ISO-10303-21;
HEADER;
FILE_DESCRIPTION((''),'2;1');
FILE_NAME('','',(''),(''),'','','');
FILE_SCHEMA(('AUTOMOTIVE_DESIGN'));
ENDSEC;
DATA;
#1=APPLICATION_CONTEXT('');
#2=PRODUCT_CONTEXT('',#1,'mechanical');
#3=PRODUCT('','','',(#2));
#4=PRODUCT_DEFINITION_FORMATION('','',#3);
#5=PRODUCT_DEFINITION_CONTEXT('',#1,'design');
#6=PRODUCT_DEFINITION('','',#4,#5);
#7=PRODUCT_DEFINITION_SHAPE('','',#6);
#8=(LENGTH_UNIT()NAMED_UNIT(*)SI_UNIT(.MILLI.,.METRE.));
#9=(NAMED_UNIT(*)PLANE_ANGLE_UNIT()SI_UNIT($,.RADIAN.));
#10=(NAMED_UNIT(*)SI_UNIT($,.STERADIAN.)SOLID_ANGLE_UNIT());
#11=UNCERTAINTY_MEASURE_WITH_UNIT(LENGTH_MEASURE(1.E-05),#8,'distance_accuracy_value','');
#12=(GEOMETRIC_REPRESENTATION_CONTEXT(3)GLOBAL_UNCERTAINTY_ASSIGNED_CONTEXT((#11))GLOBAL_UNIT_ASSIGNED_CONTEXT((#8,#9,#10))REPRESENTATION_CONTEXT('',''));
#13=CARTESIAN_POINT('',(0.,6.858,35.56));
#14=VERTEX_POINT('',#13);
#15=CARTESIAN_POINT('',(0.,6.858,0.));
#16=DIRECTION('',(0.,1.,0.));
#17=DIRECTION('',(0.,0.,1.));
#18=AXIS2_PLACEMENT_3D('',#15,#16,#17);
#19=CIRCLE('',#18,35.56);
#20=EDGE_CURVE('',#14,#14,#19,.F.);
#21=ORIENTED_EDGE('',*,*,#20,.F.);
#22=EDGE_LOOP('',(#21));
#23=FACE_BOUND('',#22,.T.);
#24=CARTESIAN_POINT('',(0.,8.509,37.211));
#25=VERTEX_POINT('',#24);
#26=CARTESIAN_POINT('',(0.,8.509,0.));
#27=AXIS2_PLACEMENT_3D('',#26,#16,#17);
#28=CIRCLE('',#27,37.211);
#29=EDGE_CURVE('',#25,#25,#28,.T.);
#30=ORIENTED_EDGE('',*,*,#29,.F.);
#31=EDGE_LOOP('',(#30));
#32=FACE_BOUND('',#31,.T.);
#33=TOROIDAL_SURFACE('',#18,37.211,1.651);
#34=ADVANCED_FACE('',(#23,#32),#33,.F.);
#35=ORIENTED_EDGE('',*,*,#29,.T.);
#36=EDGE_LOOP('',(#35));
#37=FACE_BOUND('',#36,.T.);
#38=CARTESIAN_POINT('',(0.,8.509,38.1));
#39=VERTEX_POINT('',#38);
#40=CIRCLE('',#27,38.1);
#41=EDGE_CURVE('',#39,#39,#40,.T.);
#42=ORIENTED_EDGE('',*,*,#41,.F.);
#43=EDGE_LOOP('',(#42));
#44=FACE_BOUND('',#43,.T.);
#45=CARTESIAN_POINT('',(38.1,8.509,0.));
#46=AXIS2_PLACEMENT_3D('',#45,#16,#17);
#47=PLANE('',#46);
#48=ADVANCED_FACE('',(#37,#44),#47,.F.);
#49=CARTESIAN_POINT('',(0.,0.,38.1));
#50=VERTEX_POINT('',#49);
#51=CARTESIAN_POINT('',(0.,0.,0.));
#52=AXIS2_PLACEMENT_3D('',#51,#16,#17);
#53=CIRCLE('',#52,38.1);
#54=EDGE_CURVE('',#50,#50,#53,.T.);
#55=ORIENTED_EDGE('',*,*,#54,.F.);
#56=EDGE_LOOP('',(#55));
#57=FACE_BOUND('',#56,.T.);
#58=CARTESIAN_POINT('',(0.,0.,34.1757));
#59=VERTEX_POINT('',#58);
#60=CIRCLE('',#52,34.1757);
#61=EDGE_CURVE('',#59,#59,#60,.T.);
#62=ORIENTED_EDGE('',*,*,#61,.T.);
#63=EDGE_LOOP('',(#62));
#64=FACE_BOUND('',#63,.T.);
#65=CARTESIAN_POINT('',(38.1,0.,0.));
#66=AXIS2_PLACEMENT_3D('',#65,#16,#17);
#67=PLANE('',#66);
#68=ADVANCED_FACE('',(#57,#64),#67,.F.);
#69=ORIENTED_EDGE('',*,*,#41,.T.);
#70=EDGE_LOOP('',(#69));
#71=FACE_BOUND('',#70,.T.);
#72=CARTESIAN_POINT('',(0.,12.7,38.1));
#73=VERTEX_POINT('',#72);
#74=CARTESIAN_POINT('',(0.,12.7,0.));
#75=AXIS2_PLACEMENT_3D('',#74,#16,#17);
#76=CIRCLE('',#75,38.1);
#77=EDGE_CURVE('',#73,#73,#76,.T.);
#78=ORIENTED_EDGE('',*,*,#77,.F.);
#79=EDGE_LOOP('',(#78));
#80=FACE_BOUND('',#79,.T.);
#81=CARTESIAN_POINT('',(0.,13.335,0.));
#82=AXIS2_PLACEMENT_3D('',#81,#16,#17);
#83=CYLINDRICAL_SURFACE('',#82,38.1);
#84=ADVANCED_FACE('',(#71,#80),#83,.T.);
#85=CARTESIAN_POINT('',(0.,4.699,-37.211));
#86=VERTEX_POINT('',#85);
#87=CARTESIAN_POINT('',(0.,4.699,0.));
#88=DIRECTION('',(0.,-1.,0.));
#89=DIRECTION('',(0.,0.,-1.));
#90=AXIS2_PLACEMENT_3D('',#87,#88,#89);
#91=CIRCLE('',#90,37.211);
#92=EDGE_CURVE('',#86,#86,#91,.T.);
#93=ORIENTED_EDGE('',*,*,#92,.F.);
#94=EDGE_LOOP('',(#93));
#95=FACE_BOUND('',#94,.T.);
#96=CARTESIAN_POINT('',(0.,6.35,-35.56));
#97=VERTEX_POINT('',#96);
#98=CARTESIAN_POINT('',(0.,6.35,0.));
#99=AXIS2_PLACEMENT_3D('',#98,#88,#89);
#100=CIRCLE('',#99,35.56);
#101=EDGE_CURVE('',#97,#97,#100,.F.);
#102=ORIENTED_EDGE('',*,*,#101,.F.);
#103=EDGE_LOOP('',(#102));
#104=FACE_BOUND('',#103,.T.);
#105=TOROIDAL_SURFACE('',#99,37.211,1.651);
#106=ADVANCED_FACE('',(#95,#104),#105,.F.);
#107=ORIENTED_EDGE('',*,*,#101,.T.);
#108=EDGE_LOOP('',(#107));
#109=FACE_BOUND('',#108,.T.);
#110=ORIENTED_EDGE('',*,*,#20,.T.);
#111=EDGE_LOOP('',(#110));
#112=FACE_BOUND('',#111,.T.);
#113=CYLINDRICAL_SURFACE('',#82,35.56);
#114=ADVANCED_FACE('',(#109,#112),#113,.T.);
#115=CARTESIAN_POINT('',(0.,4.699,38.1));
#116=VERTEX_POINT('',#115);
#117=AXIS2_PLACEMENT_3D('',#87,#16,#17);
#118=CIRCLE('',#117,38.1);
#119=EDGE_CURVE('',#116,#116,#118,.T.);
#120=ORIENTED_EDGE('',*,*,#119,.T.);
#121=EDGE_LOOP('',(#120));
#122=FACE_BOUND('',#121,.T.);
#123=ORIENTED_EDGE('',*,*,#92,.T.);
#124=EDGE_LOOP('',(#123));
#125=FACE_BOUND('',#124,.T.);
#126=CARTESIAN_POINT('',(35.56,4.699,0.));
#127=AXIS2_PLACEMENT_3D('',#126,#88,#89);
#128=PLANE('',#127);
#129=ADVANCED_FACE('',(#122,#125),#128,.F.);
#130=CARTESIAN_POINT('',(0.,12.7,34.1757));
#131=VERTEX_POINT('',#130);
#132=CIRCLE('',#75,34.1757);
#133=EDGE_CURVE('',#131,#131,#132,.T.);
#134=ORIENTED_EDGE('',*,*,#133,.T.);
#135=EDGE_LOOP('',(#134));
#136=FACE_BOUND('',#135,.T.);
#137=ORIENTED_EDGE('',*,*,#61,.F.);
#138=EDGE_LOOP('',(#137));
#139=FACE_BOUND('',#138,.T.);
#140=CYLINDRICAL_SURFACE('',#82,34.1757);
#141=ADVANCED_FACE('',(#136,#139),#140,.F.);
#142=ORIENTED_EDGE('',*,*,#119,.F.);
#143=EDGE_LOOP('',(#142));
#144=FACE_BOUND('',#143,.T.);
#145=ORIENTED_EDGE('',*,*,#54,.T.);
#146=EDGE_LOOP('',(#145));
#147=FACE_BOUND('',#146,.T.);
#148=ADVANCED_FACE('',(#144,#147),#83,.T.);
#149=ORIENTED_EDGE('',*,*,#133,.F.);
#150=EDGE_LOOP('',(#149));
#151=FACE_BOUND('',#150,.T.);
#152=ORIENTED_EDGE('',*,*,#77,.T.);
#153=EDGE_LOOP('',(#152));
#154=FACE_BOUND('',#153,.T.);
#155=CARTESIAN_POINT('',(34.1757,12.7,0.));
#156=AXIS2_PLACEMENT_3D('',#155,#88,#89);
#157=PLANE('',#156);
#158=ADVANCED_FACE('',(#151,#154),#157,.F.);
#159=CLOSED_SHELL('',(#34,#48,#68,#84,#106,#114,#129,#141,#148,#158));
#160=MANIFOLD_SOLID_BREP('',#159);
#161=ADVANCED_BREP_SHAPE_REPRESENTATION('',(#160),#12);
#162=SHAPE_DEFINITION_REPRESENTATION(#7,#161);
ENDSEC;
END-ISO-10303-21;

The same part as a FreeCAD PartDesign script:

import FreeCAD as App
import Part
import Sketcher

V = App.Vector
Q = App.Units.Quantity


def edges_at(feature, points):
    """Names of the edges that pass closest to the given points."""
    edges = feature.Shape.Edges
    near = lambda p: min(range(len(edges)), key=lambda i: edges[i].distToShape(Part.Vertex(*p))[0])
    return sorted({f"Edge{near(p) + 1}" for p in points})

doc = App.newDocument("Part")
params = doc.addObject("Spreadsheet::Sheet", "Params")
for row, (alias, value) in enumerate([
    ("sketch1_width", "0.1 in"),
    ("sketch1_height", "0.5 in"),
    ("sketch1_height2", "0.15 in"),
    ("sketch1_height3", "0.185 in"),
    ("revolution_angle", "360 deg"),
    ("fillet_radius", "0.065 in"),
], start=1):
    params.set(f"A{row}", alias)
    params.set(f"B{row}", "=" + value)
    params.setAlias(f"B{row}", alias)

body = doc.addObject("PartDesign::Body", "Body")

sketch1 = body.newObject("Sketcher::SketchObject", "Sketch")
sketch1.AttachmentSupport = (doc.getObject("XY_Plane"), [""])
sketch1.MapMode = "FlatFace"
sketch1.addGeometry([
    Part.LineSegment(V(34.2, 12.7, 0), V(34.2, 0, 0)),
    Part.LineSegment(V(34.2, 0, 0), V(38.1, 0, 0)),
    Part.LineSegment(V(38.1, 0, 0), V(38.1, 4.7, 0)),
    Part.LineSegment(V(38.1, 4.7, 0), V(35.6, 4.7, 0)),
    Part.LineSegment(V(35.6, 4.7, 0), V(35.6, 8.5, 0)),
    Part.LineSegment(V(35.6, 8.5, 0), V(38.1, 8.5, 0)),
    Part.LineSegment(V(38.1, 8.5, 0), V(38.1, 12.7, 0)),
    Part.LineSegment(V(38.1, 12.7, 0), V(34.2, 12.7, 0)),
], False)
sketch1.addConstraint([
    Sketcher.Constraint("Coincident", 0, 2, 1, 1),
    Sketcher.Constraint("Coincident", 1, 2, 2, 1),
    Sketcher.Constraint("Coincident", 2, 2, 3, 1),
    Sketcher.Constraint("Coincident", 3, 2, 4, 1),
    Sketcher.Constraint("Coincident", 4, 2, 5, 1),
    Sketcher.Constraint("Coincident", 5, 2, 6, 1),
    Sketcher.Constraint("Coincident", 6, 2, 7, 1),
    Sketcher.Constraint("Coincident", 7, 2, 0, 1),
    Sketcher.Constraint("Vertical", 0),
    Sketcher.Constraint("Horizontal", 1),
    Sketcher.Constraint("Vertical", 2),
    Sketcher.Constraint("Horizontal", 3),
    Sketcher.Constraint("Vertical", 4),
    Sketcher.Constraint("Horizontal", 5),
    Sketcher.Constraint("Vertical", 6),
    Sketcher.Constraint("Horizontal", 7),
    Sketcher.Constraint("PointOnObject", 0, 2, -1),
    Sketcher.Constraint("Vertical", 2, 2, 5, 2),
    Sketcher.Constraint("DistanceX", 3, 2, 3, 1, Q("0.1 in")),
    Sketcher.Constraint("DistanceY", 0, 2, 0, 1, Q("0.5 in")),
    Sketcher.Constraint("DistanceY", 4, 1, 4, 2, Q("0.15 in")),
    Sketcher.Constraint("DistanceX", -1, 1, 1, 2, Q("1.5 in")),
    Sketcher.Constraint("DistanceY", 2, 1, 2, 2, Q("0.185 in")),
    Sketcher.Constraint("DistanceX", 1, 1, 1, 2, Q("0.1545 in")),
])
sketch1.setExpression("Constraints[18]", "Params.sketch1_width")
sketch1.setExpression("Constraints[19]", "Params.sketch1_height")
sketch1.setExpression("Constraints[20]", "Params.sketch1_height2")
sketch1.setExpression("Constraints[22]", "Params.sketch1_height3")
revolution = body.newObject("PartDesign::Revolution", "Revolution")
revolution.Profile = sketch1
revolution.ReferenceAxis = (sketch1, ["V_Axis"])
revolution.setExpression("Angle", "Params.revolution_angle")
doc.recompute()

fillet = body.newObject("PartDesign::Fillet", "Fillet")
fillet.Base = (revolution, edges_at(revolution, [(-35.56, 4.699, 0), (-35.56, 8.509, 0)]))
fillet.setExpression("Radius", "Params.fillet_radius")

doc.recompute()
